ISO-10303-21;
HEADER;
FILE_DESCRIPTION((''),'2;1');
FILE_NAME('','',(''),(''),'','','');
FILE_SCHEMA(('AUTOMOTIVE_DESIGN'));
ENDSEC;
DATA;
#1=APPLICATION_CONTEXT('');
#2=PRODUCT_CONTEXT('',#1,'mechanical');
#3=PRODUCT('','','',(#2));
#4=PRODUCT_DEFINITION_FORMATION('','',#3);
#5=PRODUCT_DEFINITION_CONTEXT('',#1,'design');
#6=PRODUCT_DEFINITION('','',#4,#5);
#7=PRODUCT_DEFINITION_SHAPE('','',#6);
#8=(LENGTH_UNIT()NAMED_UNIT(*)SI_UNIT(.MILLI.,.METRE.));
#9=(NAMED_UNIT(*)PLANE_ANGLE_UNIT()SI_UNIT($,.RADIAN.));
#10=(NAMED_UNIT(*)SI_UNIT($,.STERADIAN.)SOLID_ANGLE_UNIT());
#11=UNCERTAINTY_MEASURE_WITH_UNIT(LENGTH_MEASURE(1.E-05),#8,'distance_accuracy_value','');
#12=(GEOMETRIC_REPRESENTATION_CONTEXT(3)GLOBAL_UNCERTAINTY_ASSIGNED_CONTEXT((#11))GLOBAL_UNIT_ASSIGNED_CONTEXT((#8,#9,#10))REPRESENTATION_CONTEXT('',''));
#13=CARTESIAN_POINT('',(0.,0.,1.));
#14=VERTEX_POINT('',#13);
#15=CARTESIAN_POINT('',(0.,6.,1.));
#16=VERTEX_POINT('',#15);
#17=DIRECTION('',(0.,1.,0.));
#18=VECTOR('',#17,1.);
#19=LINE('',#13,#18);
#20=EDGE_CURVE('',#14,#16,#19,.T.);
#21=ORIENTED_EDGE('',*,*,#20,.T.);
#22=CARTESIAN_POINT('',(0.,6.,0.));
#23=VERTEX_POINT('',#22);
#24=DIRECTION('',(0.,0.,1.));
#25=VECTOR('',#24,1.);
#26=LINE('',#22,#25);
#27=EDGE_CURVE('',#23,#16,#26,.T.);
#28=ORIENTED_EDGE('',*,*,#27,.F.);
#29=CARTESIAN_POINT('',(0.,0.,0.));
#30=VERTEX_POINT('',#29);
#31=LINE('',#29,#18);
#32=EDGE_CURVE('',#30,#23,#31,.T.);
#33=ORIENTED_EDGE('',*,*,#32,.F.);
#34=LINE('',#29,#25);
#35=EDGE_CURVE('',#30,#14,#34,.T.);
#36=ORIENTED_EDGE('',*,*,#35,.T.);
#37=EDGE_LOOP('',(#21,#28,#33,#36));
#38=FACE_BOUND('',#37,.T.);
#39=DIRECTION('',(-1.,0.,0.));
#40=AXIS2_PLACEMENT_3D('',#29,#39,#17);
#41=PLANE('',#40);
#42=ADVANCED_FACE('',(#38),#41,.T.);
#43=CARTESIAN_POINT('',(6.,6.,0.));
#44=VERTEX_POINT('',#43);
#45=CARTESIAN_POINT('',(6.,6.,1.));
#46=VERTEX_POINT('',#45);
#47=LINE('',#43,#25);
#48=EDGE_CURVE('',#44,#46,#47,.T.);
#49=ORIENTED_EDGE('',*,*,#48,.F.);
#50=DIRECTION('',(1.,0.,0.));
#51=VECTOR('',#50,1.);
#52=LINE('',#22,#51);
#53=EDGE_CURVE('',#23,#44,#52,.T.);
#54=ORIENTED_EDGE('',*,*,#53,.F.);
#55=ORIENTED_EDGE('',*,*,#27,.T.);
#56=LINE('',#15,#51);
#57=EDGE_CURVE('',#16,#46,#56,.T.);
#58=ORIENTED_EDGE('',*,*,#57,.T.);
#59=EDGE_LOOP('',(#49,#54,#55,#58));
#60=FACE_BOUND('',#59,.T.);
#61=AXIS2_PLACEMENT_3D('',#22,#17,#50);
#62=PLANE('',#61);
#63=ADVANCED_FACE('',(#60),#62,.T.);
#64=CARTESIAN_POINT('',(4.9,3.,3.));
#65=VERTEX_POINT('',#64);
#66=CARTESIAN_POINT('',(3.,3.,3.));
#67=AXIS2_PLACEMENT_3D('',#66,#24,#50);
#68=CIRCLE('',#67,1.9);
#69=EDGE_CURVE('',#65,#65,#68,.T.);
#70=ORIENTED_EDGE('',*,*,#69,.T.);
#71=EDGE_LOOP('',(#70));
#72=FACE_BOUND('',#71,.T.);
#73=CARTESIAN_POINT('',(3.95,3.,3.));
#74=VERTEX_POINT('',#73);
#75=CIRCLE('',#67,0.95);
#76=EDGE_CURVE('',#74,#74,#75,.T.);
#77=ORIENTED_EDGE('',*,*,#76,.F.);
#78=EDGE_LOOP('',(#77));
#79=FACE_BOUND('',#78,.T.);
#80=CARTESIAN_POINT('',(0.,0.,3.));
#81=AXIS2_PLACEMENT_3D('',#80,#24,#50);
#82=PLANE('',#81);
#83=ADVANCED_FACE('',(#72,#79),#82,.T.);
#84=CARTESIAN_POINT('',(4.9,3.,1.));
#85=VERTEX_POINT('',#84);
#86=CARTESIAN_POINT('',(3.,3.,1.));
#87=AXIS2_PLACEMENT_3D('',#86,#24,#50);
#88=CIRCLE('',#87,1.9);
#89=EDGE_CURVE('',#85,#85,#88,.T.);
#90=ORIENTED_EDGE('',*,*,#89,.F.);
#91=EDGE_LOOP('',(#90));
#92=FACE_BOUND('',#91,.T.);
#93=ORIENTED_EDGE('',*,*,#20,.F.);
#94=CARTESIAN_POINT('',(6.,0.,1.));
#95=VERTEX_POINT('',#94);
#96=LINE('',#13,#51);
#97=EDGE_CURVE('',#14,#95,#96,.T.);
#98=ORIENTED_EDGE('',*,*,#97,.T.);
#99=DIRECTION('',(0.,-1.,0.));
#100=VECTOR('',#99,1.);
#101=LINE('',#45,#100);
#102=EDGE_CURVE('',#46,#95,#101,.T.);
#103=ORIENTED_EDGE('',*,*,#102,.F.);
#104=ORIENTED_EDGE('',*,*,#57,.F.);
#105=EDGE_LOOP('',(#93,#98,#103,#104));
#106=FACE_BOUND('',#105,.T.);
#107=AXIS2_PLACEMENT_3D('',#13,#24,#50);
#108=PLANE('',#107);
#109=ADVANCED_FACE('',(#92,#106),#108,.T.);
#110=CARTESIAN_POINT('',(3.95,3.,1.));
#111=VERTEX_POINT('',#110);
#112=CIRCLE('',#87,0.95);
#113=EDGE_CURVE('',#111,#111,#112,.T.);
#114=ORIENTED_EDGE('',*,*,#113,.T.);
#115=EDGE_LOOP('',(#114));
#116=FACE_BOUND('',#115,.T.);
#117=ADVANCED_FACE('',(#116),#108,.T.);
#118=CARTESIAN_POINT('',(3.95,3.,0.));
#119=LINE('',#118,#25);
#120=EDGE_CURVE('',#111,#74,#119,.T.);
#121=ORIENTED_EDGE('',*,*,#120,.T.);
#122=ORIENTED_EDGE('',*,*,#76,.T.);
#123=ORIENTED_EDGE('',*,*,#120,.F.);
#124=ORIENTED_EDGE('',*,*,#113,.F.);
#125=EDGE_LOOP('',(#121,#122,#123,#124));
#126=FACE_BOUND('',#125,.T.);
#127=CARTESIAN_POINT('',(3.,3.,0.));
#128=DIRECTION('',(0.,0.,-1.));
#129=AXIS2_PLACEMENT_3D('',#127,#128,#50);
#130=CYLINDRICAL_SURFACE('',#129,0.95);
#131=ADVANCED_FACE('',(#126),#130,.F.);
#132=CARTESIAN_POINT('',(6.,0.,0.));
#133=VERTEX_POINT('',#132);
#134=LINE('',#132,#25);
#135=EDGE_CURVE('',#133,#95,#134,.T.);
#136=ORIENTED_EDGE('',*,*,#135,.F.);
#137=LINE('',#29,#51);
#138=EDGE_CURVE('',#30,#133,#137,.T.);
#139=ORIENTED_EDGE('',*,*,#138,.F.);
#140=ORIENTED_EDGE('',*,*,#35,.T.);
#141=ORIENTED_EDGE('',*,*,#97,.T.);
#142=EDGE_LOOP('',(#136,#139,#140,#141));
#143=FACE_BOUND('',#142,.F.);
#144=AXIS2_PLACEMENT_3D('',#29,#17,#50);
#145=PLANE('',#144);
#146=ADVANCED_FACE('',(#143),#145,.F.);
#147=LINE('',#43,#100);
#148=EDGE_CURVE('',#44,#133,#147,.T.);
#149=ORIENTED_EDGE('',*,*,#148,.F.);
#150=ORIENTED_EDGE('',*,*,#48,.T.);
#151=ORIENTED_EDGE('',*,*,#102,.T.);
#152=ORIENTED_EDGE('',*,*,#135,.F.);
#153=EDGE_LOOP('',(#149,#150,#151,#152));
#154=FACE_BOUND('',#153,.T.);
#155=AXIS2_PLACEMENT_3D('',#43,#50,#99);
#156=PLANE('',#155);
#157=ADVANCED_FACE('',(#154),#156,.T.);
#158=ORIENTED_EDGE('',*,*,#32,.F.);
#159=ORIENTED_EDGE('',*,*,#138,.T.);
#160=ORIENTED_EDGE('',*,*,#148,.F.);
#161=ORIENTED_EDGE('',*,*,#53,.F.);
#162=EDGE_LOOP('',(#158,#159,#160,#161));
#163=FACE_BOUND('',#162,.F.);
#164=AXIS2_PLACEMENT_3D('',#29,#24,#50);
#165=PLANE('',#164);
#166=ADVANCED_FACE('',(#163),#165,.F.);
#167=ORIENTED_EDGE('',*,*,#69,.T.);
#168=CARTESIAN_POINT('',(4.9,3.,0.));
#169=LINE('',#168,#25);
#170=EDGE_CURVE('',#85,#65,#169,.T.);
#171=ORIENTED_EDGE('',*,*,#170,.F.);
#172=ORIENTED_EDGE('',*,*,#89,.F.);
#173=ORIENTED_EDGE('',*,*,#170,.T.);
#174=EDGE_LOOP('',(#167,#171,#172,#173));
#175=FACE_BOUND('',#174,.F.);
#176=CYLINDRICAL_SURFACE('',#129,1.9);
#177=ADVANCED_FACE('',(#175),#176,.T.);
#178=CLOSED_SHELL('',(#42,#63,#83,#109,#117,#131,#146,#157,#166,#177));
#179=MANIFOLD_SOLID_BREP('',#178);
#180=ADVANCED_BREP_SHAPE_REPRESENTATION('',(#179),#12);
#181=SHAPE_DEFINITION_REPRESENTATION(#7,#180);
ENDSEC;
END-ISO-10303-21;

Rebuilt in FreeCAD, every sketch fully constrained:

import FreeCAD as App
import Part
import Sketcher
from FreeCAD import Vector
Q = App.Units.Quantity

doc = App.newDocument("Part")
body = doc.addObject("PartDesign::Body", "Body")

# Sketch on XY plane
sketch1 = doc.addObject("Sketcher::SketchObject", "Sketch")
body.addObject(sketch1)
sketch1.AttachmentSupport = (doc.XY_Plane, [""])
sketch1.MapMode = "FlatFace"
sketch1.addGeometry(Part.Circle(Vector(3, 3, 0), Vector(0, 0, 1), 1.9), False)
sketch1.addGeometry(Part.Circle(Vector(3, 3, 0), Vector(0, 0, 1), 0.95), False)
sketch1.addConstraint(Sketcher.Constraint("Coincident", 1, 3, 0, 3))
sketch1.addConstraint(Sketcher.Constraint("Diameter", 0, Q("3.8 mm")))
sketch1.addConstraint(Sketcher.Constraint("Diameter", 1, Q("1.9 mm")))
sketch1.addConstraint(Sketcher.Constraint("DistanceX", -1, 1, 0, 3, Q("3 mm")))
sketch1.addConstraint(Sketcher.Constraint("DistanceY", -1, 1, 0, 3, Q("3 mm")))
pad1 = doc.addObject("PartDesign::Pad", "Pad")
body.addObject(pad1)
pad1.Profile = sketch1
pad1.Length = 3

# Sketch on XY plane
sketch2 = doc.addObject("Sketcher::SketchObject", "Sketch001")
body.addObject(sketch2)
sketch2.AttachmentSupport = (doc.XY_Plane, [""])
sketch2.MapMode = "FlatFace"
sketch2.addGeometry(Part.LineSegment(Vector(0, 6, 0), Vector(0, 0, 0)), False)
sketch2.addGeometry(Part.LineSegment(Vector(0, 0, 0), Vector(6, 0, 0)), False)
sketch2.addGeometry(Part.LineSegment(Vector(6, 0, 0), Vector(6, 6, 0)), False)
sketch2.addGeometry(Part.LineSegment(Vector(6, 6, 0), Vector(0, 6, 0)), False)
sketch2.addGeometry(Part.Circle(Vector(3, 3, 0), Vector(0, 0, 1), 1.9), False)
sketch2.addConstraint(Sketcher.Constraint("Coincident", 0, 2, 1, 1))
sketch2.addConstraint(Sketcher.Constraint("Coincident", 1, 2, 2, 1))
sketch2.addConstraint(Sketcher.Constraint("Coincident", 2, 2, 3, 1))
sketch2.addConstraint(Sketcher.Constraint("Coincident", 3, 2, 0, 1))
sketch2.addConstraint(Sketcher.Constraint("Vertical", 0))
sketch2.addConstraint(Sketcher.Constraint("Horizontal", 1))
sketch2.addConstraint(Sketcher.Constraint("Vertical", 2))
sketch2.addConstraint(Sketcher.Constraint("Horizontal", 3))
sketch2.addConstraint(Sketcher.Constraint("Coincident", 0, 2, -1, 1))
sketch2.addConstraint(Sketcher.Constraint("Equal", 3, 0))
sketch2.addConstraint(Sketcher.Constraint("Diameter", 4, Q("3.8 mm")))
sketch2.addConstraint(Sketcher.Constraint("DistanceX", 1, 1, 1, 2, Q("6 mm")))
sketch2.addConstraint(Sketcher.Constraint("DistanceX", -1, 1, 4, 3, Q("3 mm")))
sketch2.addConstraint(Sketcher.Constraint("DistanceY", -1, 1, 4, 3, Q("3 mm")))
pad2 = doc.addObject("PartDesign::Pad", "Pad001")
body.addObject(pad2)
pad2.Profile = sketch2
pad2.Length = 1

# Sketch on XY plane
sketch3 = doc.addObject("Sketcher::SketchObject", "Sketch002")
body.addObject(sketch3)
sketch3.AttachmentSupport = (doc.XY_Plane, [""])
sketch3.MapMode = "FlatFace"
sketch3.addGeometry(Part.Circle(Vector(3, 3, 0), Vector(0, 0, 1), 0.95), False)
sketch3.addConstraint(Sketcher.Constraint("Diameter", 0, Q("1.9 mm")))
sketch3.addConstraint(Sketcher.Constraint("DistanceX", -1, 1, 0, 3, Q("3 mm")))
sketch3.addConstraint(Sketcher.Constraint("DistanceY", -1, 1, 0, 3, Q("3 mm")))
pad3 = doc.addObject("PartDesign::Pad", "Pad002")
body.addObject(pad3)
pad3.Profile = sketch3
pad3.Length = 1

doc.recompute()
